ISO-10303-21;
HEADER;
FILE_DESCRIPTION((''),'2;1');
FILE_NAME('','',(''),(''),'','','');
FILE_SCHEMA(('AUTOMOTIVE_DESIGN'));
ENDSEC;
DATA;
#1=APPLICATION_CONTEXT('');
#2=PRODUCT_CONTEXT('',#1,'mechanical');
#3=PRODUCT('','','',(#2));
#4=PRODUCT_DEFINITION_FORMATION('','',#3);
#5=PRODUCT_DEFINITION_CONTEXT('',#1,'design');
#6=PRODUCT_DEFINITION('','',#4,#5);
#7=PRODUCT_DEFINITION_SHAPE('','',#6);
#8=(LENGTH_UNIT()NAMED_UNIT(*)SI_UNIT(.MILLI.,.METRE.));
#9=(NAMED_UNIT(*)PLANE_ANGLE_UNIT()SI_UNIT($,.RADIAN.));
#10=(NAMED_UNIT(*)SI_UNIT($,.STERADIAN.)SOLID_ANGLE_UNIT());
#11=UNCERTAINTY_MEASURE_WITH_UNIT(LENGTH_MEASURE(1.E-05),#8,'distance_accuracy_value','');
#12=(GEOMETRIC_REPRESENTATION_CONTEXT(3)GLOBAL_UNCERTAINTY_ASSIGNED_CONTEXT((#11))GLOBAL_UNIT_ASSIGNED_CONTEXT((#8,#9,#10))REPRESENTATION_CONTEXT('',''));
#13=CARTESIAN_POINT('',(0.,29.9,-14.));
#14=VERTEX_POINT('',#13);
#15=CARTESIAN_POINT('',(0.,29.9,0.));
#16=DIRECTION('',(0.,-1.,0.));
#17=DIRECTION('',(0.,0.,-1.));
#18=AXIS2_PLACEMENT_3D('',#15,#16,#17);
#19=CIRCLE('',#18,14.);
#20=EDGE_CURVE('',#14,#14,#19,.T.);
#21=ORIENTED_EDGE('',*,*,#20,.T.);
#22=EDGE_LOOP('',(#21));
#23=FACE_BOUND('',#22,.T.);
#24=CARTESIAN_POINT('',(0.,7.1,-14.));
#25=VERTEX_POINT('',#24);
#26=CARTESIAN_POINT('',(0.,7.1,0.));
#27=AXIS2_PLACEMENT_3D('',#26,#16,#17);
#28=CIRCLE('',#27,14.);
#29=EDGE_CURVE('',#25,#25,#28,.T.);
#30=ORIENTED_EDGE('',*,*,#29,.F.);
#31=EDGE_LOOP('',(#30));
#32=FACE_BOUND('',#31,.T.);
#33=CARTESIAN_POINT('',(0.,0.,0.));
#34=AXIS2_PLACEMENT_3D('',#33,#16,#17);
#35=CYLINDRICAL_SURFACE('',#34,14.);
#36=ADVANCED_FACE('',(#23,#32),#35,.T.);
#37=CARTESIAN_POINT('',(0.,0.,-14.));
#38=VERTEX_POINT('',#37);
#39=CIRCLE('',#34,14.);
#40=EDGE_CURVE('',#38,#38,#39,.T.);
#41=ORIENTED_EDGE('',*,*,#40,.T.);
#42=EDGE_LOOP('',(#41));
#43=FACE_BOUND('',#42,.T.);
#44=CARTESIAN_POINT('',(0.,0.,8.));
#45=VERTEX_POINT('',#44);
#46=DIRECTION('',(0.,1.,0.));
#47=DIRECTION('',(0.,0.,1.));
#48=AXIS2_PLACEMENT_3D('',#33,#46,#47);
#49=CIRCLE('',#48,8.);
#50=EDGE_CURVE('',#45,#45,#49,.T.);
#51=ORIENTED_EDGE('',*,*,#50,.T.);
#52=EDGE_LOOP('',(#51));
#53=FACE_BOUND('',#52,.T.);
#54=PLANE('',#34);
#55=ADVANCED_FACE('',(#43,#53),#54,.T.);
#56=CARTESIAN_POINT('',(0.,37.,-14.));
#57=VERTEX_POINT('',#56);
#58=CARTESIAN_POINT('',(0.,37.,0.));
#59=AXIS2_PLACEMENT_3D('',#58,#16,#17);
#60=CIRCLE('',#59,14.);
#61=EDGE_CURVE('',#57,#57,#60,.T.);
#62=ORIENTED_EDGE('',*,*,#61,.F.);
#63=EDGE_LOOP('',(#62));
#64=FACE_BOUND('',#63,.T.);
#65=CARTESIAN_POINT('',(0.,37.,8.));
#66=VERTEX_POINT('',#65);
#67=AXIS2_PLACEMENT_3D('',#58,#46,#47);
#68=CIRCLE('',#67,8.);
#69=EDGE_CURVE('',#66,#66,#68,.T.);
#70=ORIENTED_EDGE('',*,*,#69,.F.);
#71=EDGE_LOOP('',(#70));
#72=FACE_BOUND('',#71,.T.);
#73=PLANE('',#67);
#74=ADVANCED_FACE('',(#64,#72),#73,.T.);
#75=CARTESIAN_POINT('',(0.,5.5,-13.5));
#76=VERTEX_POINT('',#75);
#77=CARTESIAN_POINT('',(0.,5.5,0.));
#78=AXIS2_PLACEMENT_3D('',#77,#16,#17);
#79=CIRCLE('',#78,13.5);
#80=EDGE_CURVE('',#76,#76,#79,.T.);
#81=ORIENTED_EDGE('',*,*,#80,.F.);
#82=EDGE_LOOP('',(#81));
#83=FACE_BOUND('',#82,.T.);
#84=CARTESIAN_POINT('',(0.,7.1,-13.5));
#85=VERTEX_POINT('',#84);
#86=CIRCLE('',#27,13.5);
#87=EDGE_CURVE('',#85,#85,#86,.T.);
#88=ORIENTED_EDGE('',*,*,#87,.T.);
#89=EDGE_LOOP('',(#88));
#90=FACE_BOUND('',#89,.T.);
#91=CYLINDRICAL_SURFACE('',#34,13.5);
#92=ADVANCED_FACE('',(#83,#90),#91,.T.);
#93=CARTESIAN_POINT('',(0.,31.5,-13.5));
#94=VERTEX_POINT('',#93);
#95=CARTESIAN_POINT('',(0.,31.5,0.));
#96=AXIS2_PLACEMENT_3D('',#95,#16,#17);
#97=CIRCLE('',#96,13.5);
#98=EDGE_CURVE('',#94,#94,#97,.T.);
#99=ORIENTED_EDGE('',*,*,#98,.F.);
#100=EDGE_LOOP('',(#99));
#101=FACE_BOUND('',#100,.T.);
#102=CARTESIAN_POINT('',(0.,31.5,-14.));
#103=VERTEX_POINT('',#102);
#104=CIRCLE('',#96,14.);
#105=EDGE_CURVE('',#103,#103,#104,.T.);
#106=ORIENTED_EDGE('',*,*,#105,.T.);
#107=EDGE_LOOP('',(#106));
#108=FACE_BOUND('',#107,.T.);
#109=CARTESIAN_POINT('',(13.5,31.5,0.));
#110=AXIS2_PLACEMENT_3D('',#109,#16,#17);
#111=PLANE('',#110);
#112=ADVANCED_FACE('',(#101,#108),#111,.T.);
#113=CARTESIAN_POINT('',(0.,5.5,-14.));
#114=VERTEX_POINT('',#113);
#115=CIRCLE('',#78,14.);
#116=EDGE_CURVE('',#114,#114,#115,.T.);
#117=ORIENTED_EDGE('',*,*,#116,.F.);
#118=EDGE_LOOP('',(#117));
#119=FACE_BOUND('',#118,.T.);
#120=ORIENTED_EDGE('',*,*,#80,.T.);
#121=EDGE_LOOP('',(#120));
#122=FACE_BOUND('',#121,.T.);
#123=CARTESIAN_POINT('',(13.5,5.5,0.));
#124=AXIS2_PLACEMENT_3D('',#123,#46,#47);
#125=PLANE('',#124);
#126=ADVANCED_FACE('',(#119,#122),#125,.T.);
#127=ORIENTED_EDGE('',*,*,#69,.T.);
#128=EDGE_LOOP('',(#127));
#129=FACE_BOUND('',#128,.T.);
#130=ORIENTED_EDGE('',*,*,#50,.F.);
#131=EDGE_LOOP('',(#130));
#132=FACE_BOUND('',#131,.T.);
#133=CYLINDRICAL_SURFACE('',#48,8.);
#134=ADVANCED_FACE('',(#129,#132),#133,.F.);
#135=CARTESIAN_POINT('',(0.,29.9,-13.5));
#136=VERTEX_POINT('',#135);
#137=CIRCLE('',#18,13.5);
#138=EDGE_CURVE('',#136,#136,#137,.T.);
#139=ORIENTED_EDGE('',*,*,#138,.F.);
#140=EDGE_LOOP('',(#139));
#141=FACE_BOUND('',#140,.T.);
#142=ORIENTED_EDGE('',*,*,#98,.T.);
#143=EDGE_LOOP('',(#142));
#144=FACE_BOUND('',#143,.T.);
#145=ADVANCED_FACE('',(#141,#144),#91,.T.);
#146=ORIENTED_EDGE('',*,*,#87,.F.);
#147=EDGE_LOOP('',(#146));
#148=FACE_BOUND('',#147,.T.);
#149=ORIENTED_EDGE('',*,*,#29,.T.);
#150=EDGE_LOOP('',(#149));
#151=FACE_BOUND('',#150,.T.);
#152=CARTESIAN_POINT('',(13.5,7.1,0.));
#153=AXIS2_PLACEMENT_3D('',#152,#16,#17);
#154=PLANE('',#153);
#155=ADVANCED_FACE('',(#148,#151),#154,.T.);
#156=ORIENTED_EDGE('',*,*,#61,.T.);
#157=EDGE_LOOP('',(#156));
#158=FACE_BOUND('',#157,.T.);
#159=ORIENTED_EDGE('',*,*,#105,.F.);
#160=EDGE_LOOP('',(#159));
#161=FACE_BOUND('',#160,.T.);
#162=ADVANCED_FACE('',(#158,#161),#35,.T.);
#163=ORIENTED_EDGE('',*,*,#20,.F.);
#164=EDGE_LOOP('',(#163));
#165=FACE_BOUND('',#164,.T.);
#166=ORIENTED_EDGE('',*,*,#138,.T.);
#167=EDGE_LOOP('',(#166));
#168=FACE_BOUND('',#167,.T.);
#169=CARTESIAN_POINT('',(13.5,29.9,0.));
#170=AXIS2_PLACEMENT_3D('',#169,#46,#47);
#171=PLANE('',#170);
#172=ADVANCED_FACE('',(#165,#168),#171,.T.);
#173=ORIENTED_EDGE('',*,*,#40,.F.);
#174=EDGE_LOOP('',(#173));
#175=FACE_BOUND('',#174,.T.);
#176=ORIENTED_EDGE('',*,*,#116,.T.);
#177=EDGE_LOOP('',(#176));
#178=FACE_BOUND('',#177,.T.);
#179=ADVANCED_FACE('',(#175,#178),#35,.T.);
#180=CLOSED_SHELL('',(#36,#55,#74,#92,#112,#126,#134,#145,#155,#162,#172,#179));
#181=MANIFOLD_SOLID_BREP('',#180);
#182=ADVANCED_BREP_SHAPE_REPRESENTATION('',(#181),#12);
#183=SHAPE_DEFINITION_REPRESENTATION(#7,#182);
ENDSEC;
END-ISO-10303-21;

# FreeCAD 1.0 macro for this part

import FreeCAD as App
import Part
import Sketcher
Q = App.Units.Quantity


def add_polygon(sketch, points):
    """Adds a closed chain of lines whose ends are joined by coincident constraints."""
    first, n = sketch.GeometryCount, len(points)
    for a, b in zip(points, points[1:] + points[:1]):
        sketch.addGeometry(Part.LineSegment(App.Vector(*a, 0), App.Vector(*b, 0)), False)
    for i in range(n):
        sketch.addConstraint(Sketcher.Constraint("Coincident", first + i, 2, first + (i + 1) % n, 1))

doc = App.newDocument("Part")
body = doc.addObject("PartDesign::Body", "Body")

sketch1 = doc.addObject("Sketcher::SketchObject", "Sketch")
body.addObject(sketch1)
sketch1.AttachmentSupport = (doc.XY_Plane, [""])
sketch1.MapMode = "FlatFace"
add_polygon(sketch1, [(14, 5.5), (13.5, 5.5), (13.5, 7.1), (14, 7.1), (14, 29.9), (13.5, 29.9), (13.5, 31.5), (14, 31.5), (14, 37), (0, 37), (0, 0), (14, 0)])
sketch1.addConstraint(Sketcher.Constraint("Horizontal", 0))
sketch1.addConstraint(Sketcher.Constraint("Vertical", 1))
sketch1.addConstraint(Sketcher.Constraint("Horizontal", 2))
sketch1.addConstraint(Sketcher.Constraint("Vertical", 3))
sketch1.addConstraint(Sketcher.Constraint("Horizontal", 4))
sketch1.addConstraint(Sketcher.Constraint("Vertical", 5))
sketch1.addConstraint(Sketcher.Constraint("Horizontal", 6))
sketch1.addConstraint(Sketcher.Constraint("Vertical", 7))
sketch1.addConstraint(Sketcher.Constraint("Horizontal", 8))
sketch1.addConstraint(Sketcher.Constraint("Vertical", 9))
sketch1.addConstraint(Sketcher.Constraint("Horizontal", 10))
sketch1.addConstraint(Sketcher.Constraint("Vertical", 11))
sketch1.addConstraint(Sketcher.Constraint("Coincident", 9, 2, -1, 1))
sketch1.addConstraint(Sketcher.Constraint("Vertical", 1, 2, 4, 2))
sketch1.addConstraint(Sketcher.Constraint("Vertical", 3, 2, 6, 2))
sketch1.addConstraint(Sketcher.Constraint("Vertical", 7, 2, 10, 2))
sketch1.addConstraint(Sketcher.Constraint("Equal", 1, 5))
sketch1.addConstraint(Sketcher.Constraint("Equal", 7, 11))
sketch1.addConstraint(Sketcher.Constraint("DistanceX", 8, 2, 8, 1, Q("14 mm")))
sketch1.addConstraint(Sketcher.Constraint("DistanceY", 9, 2, 9, 1, Q("37 mm")))
sketch1.addConstraint(Sketcher.Constraint("DistanceX", 0, 2, 0, 1, Q("0.5 mm")))
sketch1.addConstraint(Sketcher.Constraint("DistanceY", 1, 1, 1, 2, Q("1.6 mm")))
sketch1.addConstraint(Sketcher.Constraint("DistanceY", 3, 1, 3, 2, Q("22.8 mm")))
revolution = doc.addObject("PartDesign::Revolution", "Revolution")
body.addObject(revolution)
revolution.Profile = sketch1
revolution.ReferenceAxis = (sketch1, ["V_Axis"])
revolution.Angle = 360

sketch2 = doc.addObject("Sketcher::SketchObject", "Sketch001")
body.addObject(sketch2)
sketch2.AttachmentSupport = (doc.XZ_Plane, [""])
sketch2.MapMode = "FlatFace"
sketch2.AttachmentOffset = App.Placement(App.Vector(0, 0, -37), App.Rotation())
sketch2.addGeometry(Part.Circle(App.Vector(0, 0, 0), App.Vector(0, 0, 1), 8), False)
sketch2.addConstraint(Sketcher.Constraint("Coincident", 0, 3, -1, 1))
sketch2.addConstraint(Sketcher.Constraint("Diameter", 0, Q("16 mm")))
pocket1 = doc.addObject("PartDesign::Pocket", "Pocket")
body.addObject(pocket1)
pocket1.Profile = sketch2
pocket1.Length = 37
pocket1.Reversed = True

doc.recompute()
